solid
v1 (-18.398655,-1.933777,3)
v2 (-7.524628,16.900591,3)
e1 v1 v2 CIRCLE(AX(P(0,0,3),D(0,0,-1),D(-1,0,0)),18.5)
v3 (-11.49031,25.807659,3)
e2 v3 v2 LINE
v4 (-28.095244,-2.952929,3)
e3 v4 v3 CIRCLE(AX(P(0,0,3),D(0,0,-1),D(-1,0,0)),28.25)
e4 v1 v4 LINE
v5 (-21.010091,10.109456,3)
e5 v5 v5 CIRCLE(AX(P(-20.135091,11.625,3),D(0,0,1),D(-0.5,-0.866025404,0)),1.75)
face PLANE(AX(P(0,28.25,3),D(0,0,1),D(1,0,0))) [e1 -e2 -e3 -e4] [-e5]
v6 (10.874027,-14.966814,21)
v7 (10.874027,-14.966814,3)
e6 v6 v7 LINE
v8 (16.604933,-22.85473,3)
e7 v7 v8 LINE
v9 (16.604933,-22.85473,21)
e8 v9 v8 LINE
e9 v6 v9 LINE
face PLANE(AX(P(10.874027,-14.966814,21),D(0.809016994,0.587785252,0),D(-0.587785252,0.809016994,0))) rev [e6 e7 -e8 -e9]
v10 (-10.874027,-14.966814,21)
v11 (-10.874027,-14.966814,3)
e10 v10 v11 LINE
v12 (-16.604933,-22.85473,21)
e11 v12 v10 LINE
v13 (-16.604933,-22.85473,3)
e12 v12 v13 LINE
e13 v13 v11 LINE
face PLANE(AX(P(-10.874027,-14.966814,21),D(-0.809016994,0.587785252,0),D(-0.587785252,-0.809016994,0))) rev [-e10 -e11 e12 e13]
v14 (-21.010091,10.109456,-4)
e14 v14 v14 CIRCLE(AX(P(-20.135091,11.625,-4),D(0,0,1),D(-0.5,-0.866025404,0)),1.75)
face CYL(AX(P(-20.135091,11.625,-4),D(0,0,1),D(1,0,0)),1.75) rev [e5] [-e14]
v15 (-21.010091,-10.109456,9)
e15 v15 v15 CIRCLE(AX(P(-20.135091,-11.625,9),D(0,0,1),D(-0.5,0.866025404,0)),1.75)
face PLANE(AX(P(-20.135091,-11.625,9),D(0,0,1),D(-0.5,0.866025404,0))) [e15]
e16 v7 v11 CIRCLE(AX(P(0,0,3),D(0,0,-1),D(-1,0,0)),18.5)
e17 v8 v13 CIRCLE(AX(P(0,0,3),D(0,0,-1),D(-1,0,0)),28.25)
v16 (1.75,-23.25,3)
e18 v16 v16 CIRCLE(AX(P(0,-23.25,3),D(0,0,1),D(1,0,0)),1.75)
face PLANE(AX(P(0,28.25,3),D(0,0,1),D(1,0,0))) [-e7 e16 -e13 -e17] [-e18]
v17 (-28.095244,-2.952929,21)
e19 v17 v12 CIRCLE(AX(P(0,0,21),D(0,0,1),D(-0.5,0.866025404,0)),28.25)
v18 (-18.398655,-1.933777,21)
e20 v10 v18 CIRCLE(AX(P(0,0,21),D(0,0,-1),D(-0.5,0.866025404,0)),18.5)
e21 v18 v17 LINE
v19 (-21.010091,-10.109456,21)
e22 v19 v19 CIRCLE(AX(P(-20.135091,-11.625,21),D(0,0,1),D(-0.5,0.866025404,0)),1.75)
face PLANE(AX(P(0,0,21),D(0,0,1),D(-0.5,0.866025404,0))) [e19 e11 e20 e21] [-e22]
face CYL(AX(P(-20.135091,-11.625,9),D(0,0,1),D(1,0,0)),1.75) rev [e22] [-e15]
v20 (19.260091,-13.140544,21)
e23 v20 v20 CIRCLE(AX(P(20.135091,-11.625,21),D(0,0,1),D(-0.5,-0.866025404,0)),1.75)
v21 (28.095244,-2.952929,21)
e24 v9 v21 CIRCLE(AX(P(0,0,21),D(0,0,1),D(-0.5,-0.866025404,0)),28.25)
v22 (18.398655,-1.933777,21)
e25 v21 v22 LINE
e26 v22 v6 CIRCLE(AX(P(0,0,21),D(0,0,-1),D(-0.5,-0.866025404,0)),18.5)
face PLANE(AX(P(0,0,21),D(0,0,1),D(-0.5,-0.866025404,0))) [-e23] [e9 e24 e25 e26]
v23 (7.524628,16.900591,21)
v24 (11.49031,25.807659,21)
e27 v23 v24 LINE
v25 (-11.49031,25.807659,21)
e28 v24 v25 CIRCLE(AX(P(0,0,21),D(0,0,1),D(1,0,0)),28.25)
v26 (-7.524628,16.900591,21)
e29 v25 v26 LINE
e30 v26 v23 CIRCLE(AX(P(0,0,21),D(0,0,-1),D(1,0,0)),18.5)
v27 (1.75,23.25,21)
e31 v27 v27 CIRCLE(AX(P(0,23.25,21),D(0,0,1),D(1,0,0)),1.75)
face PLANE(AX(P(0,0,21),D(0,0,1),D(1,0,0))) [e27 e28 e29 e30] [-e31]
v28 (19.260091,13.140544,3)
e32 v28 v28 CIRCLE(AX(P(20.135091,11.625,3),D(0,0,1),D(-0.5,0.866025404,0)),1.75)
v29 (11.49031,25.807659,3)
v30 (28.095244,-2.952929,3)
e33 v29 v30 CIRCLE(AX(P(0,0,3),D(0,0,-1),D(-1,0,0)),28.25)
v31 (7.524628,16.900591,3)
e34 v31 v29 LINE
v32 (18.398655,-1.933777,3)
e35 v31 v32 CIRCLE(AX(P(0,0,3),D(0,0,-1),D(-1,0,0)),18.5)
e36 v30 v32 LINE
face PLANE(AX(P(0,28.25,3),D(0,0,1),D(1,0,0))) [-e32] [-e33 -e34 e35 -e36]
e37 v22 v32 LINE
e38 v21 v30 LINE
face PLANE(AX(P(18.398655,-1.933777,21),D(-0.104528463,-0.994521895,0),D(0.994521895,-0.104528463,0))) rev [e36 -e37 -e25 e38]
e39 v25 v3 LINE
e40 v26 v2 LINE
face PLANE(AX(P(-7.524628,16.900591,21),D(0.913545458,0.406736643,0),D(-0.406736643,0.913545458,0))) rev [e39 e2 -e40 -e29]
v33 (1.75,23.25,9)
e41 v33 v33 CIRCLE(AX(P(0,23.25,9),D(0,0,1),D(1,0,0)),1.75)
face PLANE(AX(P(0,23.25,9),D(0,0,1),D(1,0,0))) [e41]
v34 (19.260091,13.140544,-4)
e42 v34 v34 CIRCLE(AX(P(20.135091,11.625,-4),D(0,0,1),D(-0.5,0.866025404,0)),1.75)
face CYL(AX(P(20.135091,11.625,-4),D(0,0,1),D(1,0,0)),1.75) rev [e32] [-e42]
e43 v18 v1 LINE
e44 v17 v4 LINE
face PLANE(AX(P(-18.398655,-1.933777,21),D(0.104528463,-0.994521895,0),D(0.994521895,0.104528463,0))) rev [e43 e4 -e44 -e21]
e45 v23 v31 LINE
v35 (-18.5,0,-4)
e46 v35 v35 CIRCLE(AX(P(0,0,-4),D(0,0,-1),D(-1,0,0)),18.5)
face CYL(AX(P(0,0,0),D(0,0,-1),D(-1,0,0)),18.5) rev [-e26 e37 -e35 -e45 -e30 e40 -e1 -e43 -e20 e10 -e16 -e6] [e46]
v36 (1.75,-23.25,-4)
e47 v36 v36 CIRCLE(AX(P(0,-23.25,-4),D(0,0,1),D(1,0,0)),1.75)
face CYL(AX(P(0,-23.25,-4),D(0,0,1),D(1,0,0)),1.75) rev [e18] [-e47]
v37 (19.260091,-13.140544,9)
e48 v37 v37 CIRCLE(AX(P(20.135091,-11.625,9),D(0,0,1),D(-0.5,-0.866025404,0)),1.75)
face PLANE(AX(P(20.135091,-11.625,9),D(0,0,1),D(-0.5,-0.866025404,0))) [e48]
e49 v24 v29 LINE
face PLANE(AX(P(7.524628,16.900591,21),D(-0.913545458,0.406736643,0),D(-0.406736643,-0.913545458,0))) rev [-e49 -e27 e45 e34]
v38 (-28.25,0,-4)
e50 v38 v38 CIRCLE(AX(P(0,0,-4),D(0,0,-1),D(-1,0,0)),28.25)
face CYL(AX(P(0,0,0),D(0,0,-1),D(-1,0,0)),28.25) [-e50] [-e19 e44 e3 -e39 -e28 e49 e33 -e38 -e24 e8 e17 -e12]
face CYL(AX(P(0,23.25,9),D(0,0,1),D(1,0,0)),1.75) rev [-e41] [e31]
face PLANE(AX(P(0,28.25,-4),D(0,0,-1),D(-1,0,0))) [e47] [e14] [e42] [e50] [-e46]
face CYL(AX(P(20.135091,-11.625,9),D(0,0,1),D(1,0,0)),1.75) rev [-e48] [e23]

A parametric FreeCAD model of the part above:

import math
import FreeCAD as App
import Part
import Sketcher

V = App.Vector
Q = App.Units.Quantity

doc = App.newDocument("Part")
body = doc.addObject("PartDesign::Body", "Body")

# Sketch on YZ plane
sketch1 = body.newObject("Sketcher::SketchObject", "Sketch")
sketch1.AttachmentSupport = (doc.getObject("YZ_Plane"), [""])
sketch1.MapMode = "FlatFace"
sketch1.addGeometry(Part.LineSegment(V(28, 3, 0), V(18, 3, 0)), False)
sketch1.addGeometry(Part.LineSegment(V(18, 3, 0), V(18, -4, 0)), False)
sketch1.addGeometry(Part.LineSegment(V(18, -4, 0), V(28, -4, 0)), False)
sketch1.addGeometry(Part.LineSegment(V(28, -4, 0), V(28, 3, 0)), False)
sketch1.addConstraint(Sketcher.Constraint("Coincident", 0, 2, 1, 1))
sketch1.addConstraint(Sketcher.Constraint("Coincident", 1, 2, 2, 1))
sketch1.addConstraint(Sketcher.Constraint("Coincident", 2, 2, 3, 1))
sketch1.addConstraint(Sketcher.Constraint("Coincident", 3, 2, 0, 1))
sketch1.addConstraint(Sketcher.Constraint("Horizontal", 0))
sketch1.addConstraint(Sketcher.Constraint("Vertical", 1))
sketch1.addConstraint(Sketcher.Constraint("Horizontal", 2))
sketch1.addConstraint(Sketcher.Constraint("Vertical", 3))
sketch1.addConstraint(Sketcher.Constraint("DistanceY", 1, 2, 1, 1, Q("7 mm")))
sketch1.addConstraint(Sketcher.Constraint("DistanceY", -1, 1, 0, 2, Q("3 mm")))
sketch1.addConstraint(Sketcher.Constraint("DistanceX", 0, 2, 0, 1, Q("9.75 mm")))
sketch1.addConstraint(Sketcher.Constraint("DistanceX", -1, 1, 0, 2, Q("18.5 mm")))
revolution = body.newObject("PartDesign::Revolution", "Revolution")
revolution.Profile = sketch1
revolution.ReferenceAxis = (sketch1, ["V_Axis"])
revolution.Angle = 360

# Sketch on XY plane
sketch2 = body.newObject("Sketcher::SketchObject", "Sketch001")
sketch2.AttachmentSupport = (doc.getObject("XY_Plane"), [""])
sketch2.MapMode = "FlatFace"
sketch2.AttachmentOffset = App.Placement(V(0, 0, 3), App.Rotation())
sketch2.addGeometry(Part.LineSegment(V(-11, 26, 0), V(-8, 17, 0)), False)
sketch2.addGeometry(Part.ArcOfCircle(Part.Circle(V(0, 0, 0), V(0, 0, 1), 18), math.radians(66), math.radians(114)), False)
sketch2.addGeometry(Part.LineSegment(V(8, 17, 0), V(11, 26, 0)), False)
sketch2.addGeometry(Part.ArcOfCircle(Part.Circle(V(0, 0, 0), V(0, 0, 1), 28), math.radians(66), math.radians(114)), False)
sketch2.addConstraint(Sketcher.Constraint("Coincident", 0, 2, 1, 2))
sketch2.addConstraint(Sketcher.Constraint("Coincident", 1, 1, 2, 1))
sketch2.addConstraint(Sketcher.Constraint("Coincident", 2, 2, 3, 1))
sketch2.addConstraint(Sketcher.Constraint("Coincident", 3, 2, 0, 1))
sketch2.addConstraint(Sketcher.Constraint("Coincident", 1, 3, -1, 1))
sketch2.addConstraint(Sketcher.Constraint("Coincident", 3, 3, -1, 1))
sketch2.addConstraint(Sketcher.Constraint("Horizontal", 0, 2, 1, 1))
sketch2.addConstraint(Sketcher.Constraint("Horizontal", 2, 2, 3, 2))
sketch2.addConstraint(Sketcher.Constraint("Radius", 1, Q("18.5 mm")))
sketch2.addConstraint(Sketcher.Constraint("Angle", 0, Q("-66 deg")))
sketch2.addConstraint(Sketcher.Constraint("Radius", 3, Q("28.25 mm")))
sketch2.addConstraint(Sketcher.Constraint("DistanceY", -1, 1, 0, 2, Q("16.900591 mm")))
pad1 = body.newObject("PartDesign::Pad", "Pad")
pad1.Profile = sketch2
pad1.Length = 18
doc.recompute()

polarpattern = body.newObject("PartDesign::PolarPattern", "PolarPattern")
polarpattern.Originals = [pad1]
polarpattern.Axis = (doc.getObject("Z_Axis"), [""])
polarpattern.Angle = 360
polarpattern.Occurrences = 3
body.Tip = polarpattern

# Sketch on XY plane
sketch3 = body.newObject("Sketcher::SketchObject", "Sketch002")
sketch3.AttachmentSupport = (doc.getObject("XY_Plane"), [""])
sketch3.MapMode = "FlatFace"
sketch3.AttachmentOffset = App.Placement(V(0, 0, 21), App.Rotation())
sketch3.addGeometry(Part.Circle(V(0, 23.2, 0), V(0, 0, 1), 1.8), False)
sketch3.addConstraint(Sketcher.Constraint("PointOnObject", 0, 3, -2))
sketch3.addConstraint(Sketcher.Constraint("Diameter", 0, Q("3.5 mm")))
sketch3.addConstraint(Sketcher.Constraint("DistanceY", -1, 1, 0, 3, Q("23.25 mm")))
pocket1 = body.newObject("PartDesign::Pocket", "Pocket")
pocket1.Profile = sketch3
pocket1.Length = 12
doc.recompute()

polarpattern2 = body.newObject("PartDesign::PolarPattern", "PolarPattern001")
polarpattern2.Originals = [pocket1]
polarpattern2.Axis = (doc.getObject("Z_Axis"), [""])
polarpattern2.Angle = 360
polarpattern2.Occurrences = 3
body.Tip = polarpattern2

# Sketch on XY plane
sketch4 = body.newObject("Sketcher::SketchObject", "Sketch003")
sketch4.AttachmentSupport = (doc.getObject("XY_Plane"), [""])
sketch4.MapMode = "FlatFace"
sketch4.AttachmentOffset = App.Placement(V(0, 0, 3), App.Rotation())
sketch4.addGeometry(Part.Circle(V(0, -23.2, 0), V(0, 0, 1), 1.8), False)
sketch4.addConstraint(Sketcher.Constraint("PointOnObject", 0, 3, -2))
sketch4.addConstraint(Sketcher.Constraint("Diameter", 0, Q("3.5 mm")))
sketch4.addConstraint(Sketcher.Constraint("DistanceY", 0, 3, -1, 1, Q("23.25 mm")))
pocket2 = body.newObject("PartDesign::Pocket", "Pocket001")
pocket2.Profile = sketch4
pocket2.Type = "ThroughAll"
doc.recompute()

polarpattern3 = body.newObject("PartDesign::PolarPattern", "PolarPattern002")
polarpattern3.Originals = [pocket2]
polarpattern3.Axis = (doc.getObject("Z_Axis"), [""])
polarpattern3.Angle = 360
polarpattern3.Occurrences = 3
body.Tip = polarpattern3

doc.recompute()
